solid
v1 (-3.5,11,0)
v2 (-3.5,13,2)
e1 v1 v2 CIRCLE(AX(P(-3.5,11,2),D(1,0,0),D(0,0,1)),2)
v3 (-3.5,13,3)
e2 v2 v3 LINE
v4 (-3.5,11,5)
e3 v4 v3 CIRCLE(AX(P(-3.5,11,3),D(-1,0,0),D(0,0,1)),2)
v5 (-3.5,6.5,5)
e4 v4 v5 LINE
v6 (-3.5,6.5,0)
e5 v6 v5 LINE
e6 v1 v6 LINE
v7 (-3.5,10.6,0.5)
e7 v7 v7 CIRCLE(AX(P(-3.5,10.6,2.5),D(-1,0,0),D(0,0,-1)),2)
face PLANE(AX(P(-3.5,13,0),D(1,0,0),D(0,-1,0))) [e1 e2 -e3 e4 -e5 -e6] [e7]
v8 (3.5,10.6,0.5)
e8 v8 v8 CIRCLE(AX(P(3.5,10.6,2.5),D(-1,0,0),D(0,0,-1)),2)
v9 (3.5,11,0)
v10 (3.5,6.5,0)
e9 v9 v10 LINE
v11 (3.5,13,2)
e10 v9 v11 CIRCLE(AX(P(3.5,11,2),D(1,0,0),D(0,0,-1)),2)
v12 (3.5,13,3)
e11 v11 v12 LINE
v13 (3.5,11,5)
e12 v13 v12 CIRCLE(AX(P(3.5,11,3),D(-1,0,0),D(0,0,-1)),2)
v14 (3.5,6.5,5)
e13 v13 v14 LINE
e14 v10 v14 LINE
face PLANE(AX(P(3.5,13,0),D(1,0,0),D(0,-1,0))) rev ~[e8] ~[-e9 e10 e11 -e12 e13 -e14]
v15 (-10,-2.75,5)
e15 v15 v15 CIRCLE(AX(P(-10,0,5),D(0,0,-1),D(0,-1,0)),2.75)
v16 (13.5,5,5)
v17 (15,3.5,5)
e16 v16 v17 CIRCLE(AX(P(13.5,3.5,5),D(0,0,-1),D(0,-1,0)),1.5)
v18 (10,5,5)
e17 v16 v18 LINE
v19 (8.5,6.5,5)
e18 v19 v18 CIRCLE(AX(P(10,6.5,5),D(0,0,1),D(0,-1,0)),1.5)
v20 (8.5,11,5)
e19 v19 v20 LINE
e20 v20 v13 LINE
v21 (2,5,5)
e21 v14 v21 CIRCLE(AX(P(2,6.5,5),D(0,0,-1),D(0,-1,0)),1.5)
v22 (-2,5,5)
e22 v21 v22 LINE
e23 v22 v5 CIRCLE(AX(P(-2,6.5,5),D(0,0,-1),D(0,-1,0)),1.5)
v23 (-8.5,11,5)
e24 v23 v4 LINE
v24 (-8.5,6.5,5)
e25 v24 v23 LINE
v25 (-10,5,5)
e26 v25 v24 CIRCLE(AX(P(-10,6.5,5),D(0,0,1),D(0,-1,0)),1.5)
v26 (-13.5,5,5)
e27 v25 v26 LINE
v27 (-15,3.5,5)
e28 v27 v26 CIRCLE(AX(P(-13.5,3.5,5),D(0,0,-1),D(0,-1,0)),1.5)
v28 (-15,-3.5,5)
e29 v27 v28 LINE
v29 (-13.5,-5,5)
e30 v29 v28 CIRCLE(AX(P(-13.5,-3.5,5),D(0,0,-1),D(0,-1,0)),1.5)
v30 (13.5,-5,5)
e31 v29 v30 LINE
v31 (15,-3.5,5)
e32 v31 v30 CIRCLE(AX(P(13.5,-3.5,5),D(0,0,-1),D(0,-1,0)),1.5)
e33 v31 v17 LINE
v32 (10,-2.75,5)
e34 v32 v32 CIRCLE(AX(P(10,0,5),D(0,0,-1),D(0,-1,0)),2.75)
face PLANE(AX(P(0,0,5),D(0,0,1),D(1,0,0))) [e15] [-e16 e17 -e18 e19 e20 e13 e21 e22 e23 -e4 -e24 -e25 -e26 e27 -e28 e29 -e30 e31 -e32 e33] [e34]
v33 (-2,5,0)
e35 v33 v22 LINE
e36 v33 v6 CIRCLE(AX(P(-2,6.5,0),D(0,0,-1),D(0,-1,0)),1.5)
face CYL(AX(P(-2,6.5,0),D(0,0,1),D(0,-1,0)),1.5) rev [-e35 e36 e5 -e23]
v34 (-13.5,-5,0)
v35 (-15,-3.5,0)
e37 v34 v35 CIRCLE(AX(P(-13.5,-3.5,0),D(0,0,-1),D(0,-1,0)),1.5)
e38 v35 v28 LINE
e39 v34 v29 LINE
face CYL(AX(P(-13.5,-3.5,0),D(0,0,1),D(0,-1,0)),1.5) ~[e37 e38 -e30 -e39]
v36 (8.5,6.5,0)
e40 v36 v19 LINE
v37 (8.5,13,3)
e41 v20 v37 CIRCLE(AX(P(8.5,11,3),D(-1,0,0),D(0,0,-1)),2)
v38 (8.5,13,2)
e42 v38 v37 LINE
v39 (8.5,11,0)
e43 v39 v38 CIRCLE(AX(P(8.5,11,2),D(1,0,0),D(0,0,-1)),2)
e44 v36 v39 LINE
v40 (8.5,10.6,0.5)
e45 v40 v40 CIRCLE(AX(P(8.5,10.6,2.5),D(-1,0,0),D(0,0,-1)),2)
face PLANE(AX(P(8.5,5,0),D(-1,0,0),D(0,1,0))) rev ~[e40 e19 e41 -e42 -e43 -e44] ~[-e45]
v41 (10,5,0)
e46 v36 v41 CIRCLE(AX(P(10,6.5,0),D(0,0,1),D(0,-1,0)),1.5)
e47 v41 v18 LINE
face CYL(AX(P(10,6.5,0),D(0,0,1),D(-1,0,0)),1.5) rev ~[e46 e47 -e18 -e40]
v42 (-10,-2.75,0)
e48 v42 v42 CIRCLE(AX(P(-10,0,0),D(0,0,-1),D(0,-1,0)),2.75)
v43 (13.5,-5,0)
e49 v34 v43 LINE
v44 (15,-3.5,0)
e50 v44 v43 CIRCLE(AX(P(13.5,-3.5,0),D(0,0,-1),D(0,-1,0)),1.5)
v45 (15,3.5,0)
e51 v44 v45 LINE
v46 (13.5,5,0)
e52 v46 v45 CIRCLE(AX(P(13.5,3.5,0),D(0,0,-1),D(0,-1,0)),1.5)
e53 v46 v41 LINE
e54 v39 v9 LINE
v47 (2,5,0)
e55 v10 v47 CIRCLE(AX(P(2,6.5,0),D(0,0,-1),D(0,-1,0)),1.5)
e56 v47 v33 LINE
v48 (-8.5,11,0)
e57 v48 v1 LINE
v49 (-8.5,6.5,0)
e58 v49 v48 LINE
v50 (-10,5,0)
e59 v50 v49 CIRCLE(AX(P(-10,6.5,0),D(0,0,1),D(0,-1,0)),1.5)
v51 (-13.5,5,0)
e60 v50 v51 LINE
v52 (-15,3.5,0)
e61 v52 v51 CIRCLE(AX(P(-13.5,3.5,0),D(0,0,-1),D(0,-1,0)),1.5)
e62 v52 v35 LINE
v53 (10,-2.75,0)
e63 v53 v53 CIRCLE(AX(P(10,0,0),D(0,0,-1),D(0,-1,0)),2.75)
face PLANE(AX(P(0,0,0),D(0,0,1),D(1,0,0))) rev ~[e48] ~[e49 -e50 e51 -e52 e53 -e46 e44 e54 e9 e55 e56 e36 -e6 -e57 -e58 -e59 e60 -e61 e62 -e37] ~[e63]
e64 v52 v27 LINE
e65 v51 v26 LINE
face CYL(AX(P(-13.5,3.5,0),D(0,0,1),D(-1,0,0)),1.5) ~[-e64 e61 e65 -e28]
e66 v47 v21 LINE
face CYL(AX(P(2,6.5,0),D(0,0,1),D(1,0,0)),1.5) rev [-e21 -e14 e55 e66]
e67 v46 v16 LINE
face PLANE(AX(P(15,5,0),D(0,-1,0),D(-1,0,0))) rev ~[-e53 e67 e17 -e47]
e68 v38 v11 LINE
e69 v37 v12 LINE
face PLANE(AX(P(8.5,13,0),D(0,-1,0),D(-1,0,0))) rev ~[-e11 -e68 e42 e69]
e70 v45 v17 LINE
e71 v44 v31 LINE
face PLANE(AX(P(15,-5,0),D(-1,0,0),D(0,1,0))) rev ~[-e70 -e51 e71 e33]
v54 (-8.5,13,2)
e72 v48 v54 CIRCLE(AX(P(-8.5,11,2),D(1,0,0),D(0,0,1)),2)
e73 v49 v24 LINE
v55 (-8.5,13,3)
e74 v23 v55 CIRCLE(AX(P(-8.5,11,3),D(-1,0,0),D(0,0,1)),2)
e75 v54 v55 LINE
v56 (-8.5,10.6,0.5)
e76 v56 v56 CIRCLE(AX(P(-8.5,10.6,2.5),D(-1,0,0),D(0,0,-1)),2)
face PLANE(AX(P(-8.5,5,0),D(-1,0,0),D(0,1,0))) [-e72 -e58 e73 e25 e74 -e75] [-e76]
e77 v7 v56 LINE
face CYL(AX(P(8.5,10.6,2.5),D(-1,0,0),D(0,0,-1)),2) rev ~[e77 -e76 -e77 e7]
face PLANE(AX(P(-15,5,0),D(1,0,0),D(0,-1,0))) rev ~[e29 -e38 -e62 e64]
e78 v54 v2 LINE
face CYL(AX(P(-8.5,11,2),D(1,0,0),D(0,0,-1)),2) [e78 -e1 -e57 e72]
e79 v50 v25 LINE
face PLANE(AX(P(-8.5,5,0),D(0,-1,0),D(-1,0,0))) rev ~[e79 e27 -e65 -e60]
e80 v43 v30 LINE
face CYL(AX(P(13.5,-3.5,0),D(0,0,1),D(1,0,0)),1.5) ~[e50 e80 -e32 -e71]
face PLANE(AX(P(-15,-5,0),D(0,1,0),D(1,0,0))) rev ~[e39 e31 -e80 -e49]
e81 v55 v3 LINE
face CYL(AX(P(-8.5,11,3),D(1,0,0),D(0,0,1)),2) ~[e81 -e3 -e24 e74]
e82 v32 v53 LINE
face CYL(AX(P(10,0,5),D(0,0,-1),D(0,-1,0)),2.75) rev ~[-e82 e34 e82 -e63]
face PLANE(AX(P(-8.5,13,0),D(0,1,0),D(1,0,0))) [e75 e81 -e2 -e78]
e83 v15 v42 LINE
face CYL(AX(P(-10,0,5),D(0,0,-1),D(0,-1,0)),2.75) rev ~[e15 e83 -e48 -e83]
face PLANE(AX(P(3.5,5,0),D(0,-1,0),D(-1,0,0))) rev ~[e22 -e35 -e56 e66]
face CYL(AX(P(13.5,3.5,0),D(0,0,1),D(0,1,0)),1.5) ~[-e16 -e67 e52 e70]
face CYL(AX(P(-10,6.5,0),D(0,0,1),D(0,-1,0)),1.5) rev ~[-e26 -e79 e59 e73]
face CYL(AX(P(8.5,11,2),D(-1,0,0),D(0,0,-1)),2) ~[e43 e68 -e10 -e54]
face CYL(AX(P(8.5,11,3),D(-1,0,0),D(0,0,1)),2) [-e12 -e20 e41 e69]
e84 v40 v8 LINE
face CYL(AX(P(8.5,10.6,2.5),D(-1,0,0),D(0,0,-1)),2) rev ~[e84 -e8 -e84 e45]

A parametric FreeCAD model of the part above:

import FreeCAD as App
import Part
import Sketcher
from FreeCAD import Vector
Q = App.Units.Quantity


def edges_at(feature, points):
    """Names of the edges that pass closest to the given points."""
    edges = feature.Shape.Edges
    near = lambda p: min(range(len(edges)), key=lambda i: edges[i].distToShape(Part.Vertex(*p))[0])
    return sorted({f"Edge{near(p) + 1}" for p in points})

doc = App.newDocument("Part")
body = doc.addObject("PartDesign::Body", "Body")

# Sketch on XY plane
sketch1 = doc.addObject("Sketcher::SketchObject", "Sketch")
body.addObject(sketch1)
sketch1.AttachmentSupport = (doc.XY_Plane, [""])
sketch1.MapMode = "FlatFace"
sketch1.addGeometry(Part.LineSegment(Vector(-15, 5, 0), Vector(-15, -5, 0)), False)
sketch1.addGeometry(Part.LineSegment(Vector(-15, -5, 0), Vector(15, -5, 0)), False)
sketch1.addGeometry(Part.LineSegment(Vector(15, -5, 0), Vector(15, 5, 0)), False)
sketch1.addGeometry(Part.LineSegment(Vector(15, 5, 0), Vector(8, 5, 0)), False)
sketch1.addGeometry(Part.LineSegment(Vector(8, 5, 0), Vector(8, 13, 0)), False)
sketch1.addGeometry(Part.LineSegment(Vector(8, 13, 0), Vector(4, 13, 0)), False)
sketch1.addGeometry(Part.LineSegment(Vector(4, 13, 0), Vector(4, 5, 0)), False)
sketch1.addGeometry(Part.LineSegment(Vector(4, 5, 0), Vector(-4, 5, 0)), False)
sketch1.addGeometry(Part.LineSegment(Vector(-4, 5, 0), Vector(-4, 13, 0)), False)
sketch1.addGeometry(Part.LineSegment(Vector(-4, 13, 0), Vector(-8, 13, 0)), False)
sketch1.addGeometry(Part.LineSegment(Vector(-8, 13, 0), Vector(-8, 5, 0)), False)
sketch1.addGeometry(Part.LineSegment(Vector(-8, 5, 0), Vector(-15, 5, 0)), False)
sketch1.addConstraint(Sketcher.Constraint("Coincident", 0, 2, 1, 1))
sketch1.addConstraint(Sketcher.Constraint("Coincident", 1, 2, 2, 1))
sketch1.addConstraint(Sketcher.Constraint("Coincident", 2, 2, 3, 1))
sketch1.addConstraint(Sketcher.Constraint("Coincident", 3, 2, 4, 1))
sketch1.addConstraint(Sketcher.Constraint("Coincident", 4, 2, 5, 1))
sketch1.addConstraint(Sketcher.Constraint("Coincident", 5, 2, 6, 1))
sketch1.addConstraint(Sketcher.Constraint("Coincident", 6, 2, 7, 1))
sketch1.addConstraint(Sketcher.Constraint("Coincident", 7, 2, 8, 1))
sketch1.addConstraint(Sketcher.Constraint("Coincident", 8, 2, 9, 1))
sketch1.addConstraint(Sketcher.Constraint("Coincident", 9, 2, 10, 1))
sketch1.addConstraint(Sketcher.Constraint("Coincident", 10, 2, 11, 1))
sketch1.addConstraint(Sketcher.Constraint("Coincident", 11, 2, 0, 1))
sketch1.addConstraint(Sketcher.Constraint("Vertical", 0))
sketch1.addConstraint(Sketcher.Constraint("Horizontal", 1))
sketch1.addConstraint(Sketcher.Constraint("Vertical", 2))
sketch1.addConstraint(Sketcher.Constraint("Horizontal", 3))
sketch1.addConstraint(Sketcher.Constraint("Vertical", 4))
sketch1.addConstraint(Sketcher.Constraint("Horizontal", 5))
sketch1.addConstraint(Sketcher.Constraint("Vertical", 6))
sketch1.addConstraint(Sketcher.Constraint("Horizontal", 7))
sketch1.addConstraint(Sketcher.Constraint("Vertical", 8))
sketch1.addConstraint(Sketcher.Constraint("Horizontal", 9))
sketch1.addConstraint(Sketcher.Constraint("Vertical", 10))
sketch1.addConstraint(Sketcher.Constraint("Horizontal", 11))
sketch1.addConstraint(Sketcher.Constraint("Symmetric", 0, 2, 2, 2, -1, 1))
sketch1.addConstraint(Sketcher.Constraint("Symmetric", 5, 2, 8, 2, -2))
sketch1.addConstraint(Sketcher.Constraint("Symmetric", 3, 2, 10, 2, -2))
sketch1.addConstraint(Sketcher.Constraint("Horizontal", 3, 2, 6, 2))
sketch1.addConstraint(Sketcher.Constraint("DistanceX", 1, 1, 1, 2, Q("30 mm")))
sketch1.addConstraint(Sketcher.Constraint("DistanceX", 5, 2, 5, 1, Q("5 mm")))
sketch1.addConstraint(Sketcher.Constraint("DistanceX", 7, 2, 7, 1, Q("7 mm")))
sketch1.addConstraint(Sketcher.Constraint("DistanceY", 0, 2, 0, 1, Q("10 mm")))
sketch1.addConstraint(Sketcher.Constraint("DistanceY", 4, 1, 4, 2, Q("8 mm")))
pad1 = doc.addObject("PartDesign::Pad", "Pad")
body.addObject(pad1)
pad1.Profile = sketch1
pad1.Length = 5

# Sketch on YZ plane
sketch2 = doc.addObject("Sketcher::SketchObject", "Sketch001")
body.addObject(sketch2)
sketch2.AttachmentSupport = (doc.YZ_Plane, [""])
sketch2.MapMode = "FlatFace"
sketch2.AttachmentOffset = App.Placement(Vector(0, 0, 8.5), App.Rotation())
sketch2.addGeometry(Part.Circle(Vector(10.6, 2.5, 0), Vector(0, 0, 1), 2), False)
sketch2.addConstraint(Sketcher.Constraint("Diameter", 0, Q("4 mm")))
sketch2.addConstraint(Sketcher.Constraint("DistanceX", -1, 1, 0, 3, Q("10.6 mm")))
sketch2.addConstraint(Sketcher.Constraint("DistanceY", -1, 1, 0, 3, Q("2.5 mm")))
doc.recompute()
hole = doc.addObject("PartDesign::Hole", "Hole")
body.addObject(hole)
hole.Profile = sketch2
hole.ThreadType = "None"
hole.Diameter = 4
hole.DepthType = "ThroughAll"
doc.recompute()

fillet = doc.addObject("PartDesign::Fillet", "Fillet")
body.addObject(fillet)
fillet.Base = (hole, edges_at(hole, [
    (6, 13, 0),
    (6, 13, 5),
    (-6, 13, 0),
    (-6, 13, 5),
]))
fillet.Radius = 2
doc.recompute()

fillet2 = doc.addObject("PartDesign::Fillet", "Fillet001")
body.addObject(fillet2)
fillet2.Base = (fillet, edges_at(fillet, [
    (-3.5, 5, 2.5),
    (3.5, 5, 2.5),
    (-8.5, 5, 2.5),
    (8.5, 5, 2.5),
    (15, 5, 2.5),
    (15, -5, 2.5),
    (-15, -5, 2.5),
    (-15, 5, 2.5),
]))
fillet2.Radius = 1.5

# Sketch on XY plane
sketch3 = doc.addObject("Sketcher::SketchObject", "Sketch002")
body.addObject(sketch3)
sketch3.AttachmentSupport = (doc.XY_Plane, [""])
sketch3.MapMode = "FlatFace"
sketch3.AttachmentOffset = App.Placement(Vector(0, 0, 5), App.Rotation())
sketch3.addGeometry(Part.Circle(Vector(-10, 0, 0), Vector(0, 0, 1), 2.8), False)
sketch3.addGeometry(Part.Circle(Vector(10, 0, 0), Vector(0, 0, 1), 2.8), False)
sketch3.addConstraint(Sketcher.Constraint("Equal", 0, 1))
sketch3.addConstraint(Sketcher.Constraint("Symmetric", 0, 3, 1, 3, -1, 1))
sketch3.addConstraint(Sketcher.Constraint("PointOnObject", 0, 3, -1))
sketch3.addConstraint(Sketcher.Constraint("Diameter", 0, Q("5.5 mm")))
sketch3.addConstraint(Sketcher.Constraint("DistanceX", 0, 3, -1, 1, Q("10 mm")))
doc.recompute()
hole2 = doc.addObject("PartDesign::Hole", "Hole001")
body.addObject(hole2)
hole2.Profile = sketch3
hole2.ThreadType = "None"
hole2.Diameter = 5.5
hole2.DepthType = "ThroughAll"

doc.recompute()
